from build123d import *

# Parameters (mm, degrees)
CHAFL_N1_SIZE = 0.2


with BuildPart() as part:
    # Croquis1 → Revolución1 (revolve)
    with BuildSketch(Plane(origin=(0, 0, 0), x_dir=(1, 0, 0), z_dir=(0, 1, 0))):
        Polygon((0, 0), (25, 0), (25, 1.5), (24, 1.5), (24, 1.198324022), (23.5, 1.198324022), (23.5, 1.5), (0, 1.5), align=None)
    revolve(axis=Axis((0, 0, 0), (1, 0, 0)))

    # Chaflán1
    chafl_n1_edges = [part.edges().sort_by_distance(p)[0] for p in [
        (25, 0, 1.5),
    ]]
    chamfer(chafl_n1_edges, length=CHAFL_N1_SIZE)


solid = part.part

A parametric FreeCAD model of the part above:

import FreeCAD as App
import Part
import Sketcher
from FreeCAD import Vector
Q = App.Units.Quantity


def edges_at(feature, points):
    """Names of the edges that pass closest to the given points."""
    edges = feature.Shape.Edges
    near = lambda p: min(range(len(edges)), key=lambda i: edges[i].distToShape(Part.Vertex(*p))[0])
    return sorted({f"Edge{near(p) + 1}" for p in points})

doc = App.newDocument("Part")
body = doc.addObject("PartDesign::Body", "Body")

# Sketch on XZ plane
sketch1 = body.newObject("Sketcher::SketchObject", "Sketch")
sketch1.AttachmentSupport = (doc.getObject("XZ_Plane"), [""])
sketch1.MapMode = "FlatFace"
sketch1.addGeometry(Part.LineSegment(Vector(0, 0, 0), Vector(25, 0, 0)), False)
sketch1.addGeometry(Part.LineSegment(Vector(25, 0, 0), Vector(25, -1.5, 0)), False)
sketch1.addGeometry(Part.LineSegment(Vector(25, -1.5, 0), Vector(24, -1.5, 0)), False)
sketch1.addGeometry(Part.LineSegment(Vector(24, -1.5, 0), Vector(24, -1.2, 0)), False)
sketch1.addGeometry(Part.LineSegment(Vector(24, -1.2, 0), Vector(23.5, -1.2, 0)), False)
sketch1.addGeometry(Part.LineSegment(Vector(23.5, -1.2, 0), Vector(23.5, -1.5, 0)), False)
sketch1.addGeometry(Part.LineSegment(Vector(23.5, -1.5, 0), Vector(0, -1.5, 0)), False)
sketch1.addGeometry(Part.LineSegment(Vector(0, -1.5, 0), Vector(0, 0, 0)), False)
sketch1.addConstraint(Sketcher.Constraint("Coincident", 0, 2, 1, 1))
sketch1.addConstraint(Sketcher.Constraint("Coincident", 1, 2, 2, 1))
sketch1.addConstraint(Sketcher.Constraint("Coincident", 2, 2, 3, 1))
sketch1.addConstraint(Sketcher.Constraint("Coincident", 3, 2, 4, 1))
sketch1.addConstraint(Sketcher.Constraint("Coincident", 4, 2, 5, 1))
sketch1.addConstraint(Sketcher.Constraint("Coincident", 5, 2, 6, 1))
sketch1.addConstraint(Sketcher.Constraint("Coincident", 6, 2, 7, 1))
sketch1.addConstraint(Sketcher.Constraint("Coincident", 7, 2, 0, 1))
sketch1.addConstraint(Sketcher.Constraint("Horizontal", 0))
sketch1.addConstraint(Sketcher.Constraint("Vertical", 1))
sketch1.addConstraint(Sketcher.Constraint("Horizontal", 2))
sketch1.addConstraint(Sketcher.Constraint("Vertical", 3))
sketch1.addConstraint(Sketcher.Constraint("Horizontal", 4))
sketch1.addConstraint(Sketcher.Constraint("Vertical", 5))
sketch1.addConstraint(Sketcher.Constraint("Horizontal", 6))
sketch1.addConstraint(Sketcher.Constraint("Vertical", 7))
sketch1.addConstraint(Sketcher.Constraint("Coincident", 7, 2, -1, 1))
sketch1.addConstraint(Sketcher.Constraint("Horizontal", 2, 2, 5, 2))
sketch1.addConstraint(Sketcher.Constraint("DistanceX", 0, 1, 0, 2, Q("25 mm")))
sketch1.addConstraint(Sketcher.Constraint("DistanceX", 2, 2, 2, 1, Q("1 mm")))
sketch1.addConstraint(Sketcher.Constraint("DistanceX", 4, 2, 4, 1, Q("0.5 mm")))
sketch1.addConstraint(Sketcher.Constraint("DistanceY", 1, 2, 1, 1, Q("1.5 mm")))
sketch1.addConstraint(Sketcher.Constraint("DistanceY", 3, 1, 3, 2, Q("0.301676 mm")))
revolution = body.newObject("PartDesign::Revolution", "Revolution")
revolution.Profile = sketch1
revolution.ReferenceAxis = (sketch1, ["H_Axis"])
revolution.Angle = 360
doc.recompute()

chamfer = body.newObject("PartDesign::Chamfer", "Chamfer")
chamfer.Base = (revolution, edges_at(revolution, [(25, 0, 1.5)]))
chamfer.Size = 0.2

doc.recompute()
